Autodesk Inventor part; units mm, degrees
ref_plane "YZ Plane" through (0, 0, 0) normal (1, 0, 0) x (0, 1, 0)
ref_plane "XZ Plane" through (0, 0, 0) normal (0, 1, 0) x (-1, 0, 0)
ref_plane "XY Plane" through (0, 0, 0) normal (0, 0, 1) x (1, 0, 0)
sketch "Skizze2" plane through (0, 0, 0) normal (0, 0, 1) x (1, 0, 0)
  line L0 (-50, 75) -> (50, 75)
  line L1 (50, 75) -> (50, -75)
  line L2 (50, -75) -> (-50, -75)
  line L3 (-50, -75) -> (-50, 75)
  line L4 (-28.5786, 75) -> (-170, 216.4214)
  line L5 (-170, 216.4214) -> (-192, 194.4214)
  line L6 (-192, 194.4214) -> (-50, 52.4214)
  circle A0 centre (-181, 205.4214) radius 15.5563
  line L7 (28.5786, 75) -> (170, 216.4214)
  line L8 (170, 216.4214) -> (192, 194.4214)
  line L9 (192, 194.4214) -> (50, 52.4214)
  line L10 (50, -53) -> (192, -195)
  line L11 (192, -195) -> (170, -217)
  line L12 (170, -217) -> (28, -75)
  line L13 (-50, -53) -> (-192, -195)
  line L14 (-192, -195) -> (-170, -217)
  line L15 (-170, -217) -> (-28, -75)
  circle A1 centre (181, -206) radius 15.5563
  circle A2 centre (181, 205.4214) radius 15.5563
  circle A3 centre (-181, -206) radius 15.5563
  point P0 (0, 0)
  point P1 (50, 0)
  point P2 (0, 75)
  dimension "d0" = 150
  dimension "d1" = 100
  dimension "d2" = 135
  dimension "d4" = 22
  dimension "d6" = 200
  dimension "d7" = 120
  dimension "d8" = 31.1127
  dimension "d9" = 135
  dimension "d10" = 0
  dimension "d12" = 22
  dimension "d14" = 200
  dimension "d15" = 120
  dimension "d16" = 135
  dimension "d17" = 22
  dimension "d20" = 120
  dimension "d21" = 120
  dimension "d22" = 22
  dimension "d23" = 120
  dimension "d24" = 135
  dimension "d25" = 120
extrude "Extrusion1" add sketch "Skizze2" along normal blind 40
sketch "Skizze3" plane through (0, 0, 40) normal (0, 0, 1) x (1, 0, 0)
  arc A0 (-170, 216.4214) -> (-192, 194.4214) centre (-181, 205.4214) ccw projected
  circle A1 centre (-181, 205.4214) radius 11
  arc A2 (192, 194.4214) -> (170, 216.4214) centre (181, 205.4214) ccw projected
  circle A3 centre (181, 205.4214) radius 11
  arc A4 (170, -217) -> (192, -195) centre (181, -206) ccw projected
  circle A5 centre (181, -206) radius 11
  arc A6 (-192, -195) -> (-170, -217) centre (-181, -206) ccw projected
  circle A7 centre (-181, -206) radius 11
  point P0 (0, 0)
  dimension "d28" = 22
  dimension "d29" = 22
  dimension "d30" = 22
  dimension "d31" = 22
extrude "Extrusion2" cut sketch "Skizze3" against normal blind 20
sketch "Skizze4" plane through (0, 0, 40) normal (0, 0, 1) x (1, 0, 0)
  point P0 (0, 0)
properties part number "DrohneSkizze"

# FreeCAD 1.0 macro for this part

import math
import FreeCAD as App
import Part
import Sketcher
from FreeCAD import Vector

doc = App.newDocument("Part")
body = doc.addObject("PartDesign::Body", "Body")

sketch1 = body.newObject("Sketcher::SketchObject", "Sketch")
sketch1.AttachmentSupport = (doc.getObject("XY_Plane"), [""])
sketch1.MapMode = "FlatFace"
sketch1.addGeometry(Part.LineSegment(Vector(-192, 194, 0), Vector(-50, 52, 0)), False)
sketch1.addGeometry(Part.LineSegment(Vector(-50, 52, 0), Vector(-50, -53, 0)), False)
sketch1.addGeometry(Part.LineSegment(Vector(-50, -53, 0), Vector(-192, -195, 0)), False)
sketch1.addGeometry(Part.ArcOfCircle(Part.Circle(Vector(-181, -206, 0), Vector(0, 0, 1), 16), math.radians(135), math.radians(315)), False)
sketch1.addGeometry(Part.LineSegment(Vector(-170, -217, 0), Vector(-28, -75, 0)), False)
sketch1.addGeometry(Part.LineSegment(Vector(-28, -75, 0), Vector(28, -75, 0)), False)
sketch1.addGeometry(Part.LineSegment(Vector(28, -75, 0), Vector(170, -217, 0)), False)
sketch1.addGeometry(Part.ArcOfCircle(Part.Circle(Vector(181, -206, 0), Vector(0, 0, 1), 16), math.radians(-135), math.radians(45)), False)
sketch1.addGeometry(Part.LineSegment(Vector(192, -195, 0), Vector(50, -53, 0)), False)
sketch1.addGeometry(Part.LineSegment(Vector(50, -53, 0), Vector(50, 52, 0)), False)
sketch1.addGeometry(Part.LineSegment(Vector(50, 52, 0), Vector(192, 194, 0)), False)
sketch1.addGeometry(Part.ArcOfCircle(Part.Circle(Vector(181, 205, 0), Vector(0, 0, 1), 16), math.radians(-45), math.radians(135)), False)
sketch1.addGeometry(Part.LineSegment(Vector(170, 216, 0), Vector(29, 75, 0)), False)
sketch1.addGeometry(Part.LineSegment(Vector(29, 75, 0), Vector(-29, 75, 0)), False)
sketch1.addGeometry(Part.LineSegment(Vector(-29, 75, 0), Vector(-170, 216, 0)), False)
sketch1.addGeometry(Part.ArcOfCircle(Part.Circle(Vector(-181, 205, 0), Vector(0, 0, 1), 16), math.radians(45), math.radians(225)), False)
sketch1.addConstraint(Sketcher.Constraint("Coincident", 0, 2, 1, 1))
sketch1.addConstraint(Sketcher.Constraint("Coincident", 1, 2, 2, 1))
sketch1.addConstraint(Sketcher.Constraint("Tangent", 2, 2, 3, 1))
sketch1.addConstraint(Sketcher.Constraint("Tangent", 3, 2, 4, 1))
sketch1.addConstraint(Sketcher.Constraint("Coincident", 4, 2, 5, 1))
sketch1.addConstraint(Sketcher.Constraint("Coincident", 5, 2, 6, 1))
sketch1.addConstraint(Sketcher.Constraint("Tangent", 6, 2, 7, 1))
sketch1.addConstraint(Sketcher.Constraint("Tangent", 7, 2, 8, 1))
sketch1.addConstraint(Sketcher.Constraint("Coincident", 8, 2, 9, 1))
sketch1.addConstraint(Sketcher.Constraint("Coincident", 9, 2, 10, 1))
sketch1.addConstraint(Sketcher.Constraint("Tangent", 10, 2, 11, 1))
sketch1.addConstraint(Sketcher.Constraint("Tangent", 11, 2, 12, 1))
sketch1.addConstraint(Sketcher.Constraint("Coincident", 12, 2, 13, 1))
sketch1.addConstraint(Sketcher.Constraint("Coincident", 13, 2, 14, 1))
sketch1.addConstraint(Sketcher.Constraint("Tangent", 14, 2, 15, 1))
sketch1.addConstraint(Sketcher.Constraint("Tangent", 15, 2, 0, 1))
sketch1.addConstraint(Sketcher.Constraint("Vertical", 1))
sketch1.addConstraint(Sketcher.Constraint("Horizontal", 5))
sketch1.addConstraint(Sketcher.Constraint("Vertical", 9))
sketch1.addConstraint(Sketcher.Constraint("Horizontal", 13))
sketch1.addConstraint(Sketcher.Constraint("Equal", 3, 7))
sketch1.addConstraint(Sketcher.Constraint("Equal", 7, 11))
sketch1.addConstraint(Sketcher.Constraint("Equal", 11, 15))
sketch1.addConstraint(Sketcher.Constraint("Symmetric", 3, 3, 7, 3, -2))
sketch1.addConstraint(Sketcher.Constraint("Symmetric", 11, 3, 15, 3, -2))
sketch1.addConstraint(Sketcher.Constraint("Symmetric", 1, 2, 8, 2, -2))
sketch1.addConstraint(Sketcher.Constraint("Perpendicular", 0, 2))
sketch1.addConstraint(Sketcher.Constraint("Parallel", 2, 4))
sketch1.addConstraint(Sketcher.Constraint("Perpendicular", 4, 6))
sketch1.addConstraint(Sketcher.Constraint("Parallel", 6, 8))
sketch1.addConstraint(Sketcher.Constraint("Perpendicular", 8, 10))
sketch1.addConstraint(Sketcher.Constraint("Parallel", 10, 12))
sketch1.addConstraint(Sketcher.Constraint("Perpendicular", 12, 14))
sketch1.addConstraint(Sketcher.Constraint("Vertical", 7, 3, 11, 3))
sketch1.addConstraint(Sketcher.Constraint("Equal", 2, 4))
sketch1.addConstraint(Sketcher.Constraint("Distance", 12, 200.0))
sketch1.addConstraint(Sketcher.Constraint("DistanceX", 2, 2, 3, 2, 22.0))
sketch1.addConstraint(Sketcher.Constraint("DistanceX", 3, 2, 1, 2, 120.0))
sketch1.addConstraint(Sketcher.Constraint("DistanceX", 1, 2, 8, 2, 100.0))
sketch1.addConstraint(Sketcher.Constraint("DistanceY", 5, 2, 12, 2, 150.0))
sketch1.addConstraint(Sketcher.Constraint("DistanceY", 3, 3, -1, 1, 206.0))
pad1 = body.newObject("PartDesign::Pad", "Pad")
pad1.Profile = sketch1
pad1.Length = 40

sketch2 = body.newObject("Sketcher::SketchObject", "Sketch001")
sketch2.AttachmentSupport = (doc.getObject("XY_Plane"), [""])
sketch2.MapMode = "FlatFace"
sketch2.AttachmentOffset = App.Placement(Vector(0, 0, 40), App.Rotation())
sketch2.addGeometry(Part.Circle(Vector(-181, 205, 0), Vector(0, 0, 1), 11), False)
sketch2.addGeometry(Part.Circle(Vector(181, 205, 0), Vector(0, 0, 1), 11), False)
sketch2.addGeometry(Part.Circle(Vector(181, -206, 0), Vector(0, 0, 1), 11), False)
sketch2.addGeometry(Part.Circle(Vector(-181, -206, 0), Vector(0, 0, 1), 11), False)
sketch2.addConstraint(Sketcher.Constraint("Equal", 0, 1))
sketch2.addConstraint(Sketcher.Constraint("Equal", 1, 2))
sketch2.addConstraint(Sketcher.Constraint("Equal", 2, 3))
sketch2.addConstraint(Sketcher.Constraint("Symmetric", 0, 3, 1, 3, -2))
sketch2.addConstraint(Sketcher.Constraint("Symmetric", 2, 3, 3, 3, -2))
sketch2.addConstraint(Sketcher.Constraint("Vertical", 1, 3, 2, 3))
sketch2.addConstraint(Sketcher.Constraint("Diameter", 0, 22.0))
sketch2.addConstraint(Sketcher.Constraint("DistanceX", 0, 3, -1, 1, 181.0))
sketch2.addConstraint(Sketcher.Constraint("DistanceY", 2, 3, -1, 1, 206.0))
sketch2.addConstraint(Sketcher.Constraint("DistanceY", -1, 1, 0, 3, 205.4214))
pocket1 = body.newObject("PartDesign::Pocket", "Pocket")
pocket1.Profile = sketch2
pocket1.Length = 20

doc.recompute()
